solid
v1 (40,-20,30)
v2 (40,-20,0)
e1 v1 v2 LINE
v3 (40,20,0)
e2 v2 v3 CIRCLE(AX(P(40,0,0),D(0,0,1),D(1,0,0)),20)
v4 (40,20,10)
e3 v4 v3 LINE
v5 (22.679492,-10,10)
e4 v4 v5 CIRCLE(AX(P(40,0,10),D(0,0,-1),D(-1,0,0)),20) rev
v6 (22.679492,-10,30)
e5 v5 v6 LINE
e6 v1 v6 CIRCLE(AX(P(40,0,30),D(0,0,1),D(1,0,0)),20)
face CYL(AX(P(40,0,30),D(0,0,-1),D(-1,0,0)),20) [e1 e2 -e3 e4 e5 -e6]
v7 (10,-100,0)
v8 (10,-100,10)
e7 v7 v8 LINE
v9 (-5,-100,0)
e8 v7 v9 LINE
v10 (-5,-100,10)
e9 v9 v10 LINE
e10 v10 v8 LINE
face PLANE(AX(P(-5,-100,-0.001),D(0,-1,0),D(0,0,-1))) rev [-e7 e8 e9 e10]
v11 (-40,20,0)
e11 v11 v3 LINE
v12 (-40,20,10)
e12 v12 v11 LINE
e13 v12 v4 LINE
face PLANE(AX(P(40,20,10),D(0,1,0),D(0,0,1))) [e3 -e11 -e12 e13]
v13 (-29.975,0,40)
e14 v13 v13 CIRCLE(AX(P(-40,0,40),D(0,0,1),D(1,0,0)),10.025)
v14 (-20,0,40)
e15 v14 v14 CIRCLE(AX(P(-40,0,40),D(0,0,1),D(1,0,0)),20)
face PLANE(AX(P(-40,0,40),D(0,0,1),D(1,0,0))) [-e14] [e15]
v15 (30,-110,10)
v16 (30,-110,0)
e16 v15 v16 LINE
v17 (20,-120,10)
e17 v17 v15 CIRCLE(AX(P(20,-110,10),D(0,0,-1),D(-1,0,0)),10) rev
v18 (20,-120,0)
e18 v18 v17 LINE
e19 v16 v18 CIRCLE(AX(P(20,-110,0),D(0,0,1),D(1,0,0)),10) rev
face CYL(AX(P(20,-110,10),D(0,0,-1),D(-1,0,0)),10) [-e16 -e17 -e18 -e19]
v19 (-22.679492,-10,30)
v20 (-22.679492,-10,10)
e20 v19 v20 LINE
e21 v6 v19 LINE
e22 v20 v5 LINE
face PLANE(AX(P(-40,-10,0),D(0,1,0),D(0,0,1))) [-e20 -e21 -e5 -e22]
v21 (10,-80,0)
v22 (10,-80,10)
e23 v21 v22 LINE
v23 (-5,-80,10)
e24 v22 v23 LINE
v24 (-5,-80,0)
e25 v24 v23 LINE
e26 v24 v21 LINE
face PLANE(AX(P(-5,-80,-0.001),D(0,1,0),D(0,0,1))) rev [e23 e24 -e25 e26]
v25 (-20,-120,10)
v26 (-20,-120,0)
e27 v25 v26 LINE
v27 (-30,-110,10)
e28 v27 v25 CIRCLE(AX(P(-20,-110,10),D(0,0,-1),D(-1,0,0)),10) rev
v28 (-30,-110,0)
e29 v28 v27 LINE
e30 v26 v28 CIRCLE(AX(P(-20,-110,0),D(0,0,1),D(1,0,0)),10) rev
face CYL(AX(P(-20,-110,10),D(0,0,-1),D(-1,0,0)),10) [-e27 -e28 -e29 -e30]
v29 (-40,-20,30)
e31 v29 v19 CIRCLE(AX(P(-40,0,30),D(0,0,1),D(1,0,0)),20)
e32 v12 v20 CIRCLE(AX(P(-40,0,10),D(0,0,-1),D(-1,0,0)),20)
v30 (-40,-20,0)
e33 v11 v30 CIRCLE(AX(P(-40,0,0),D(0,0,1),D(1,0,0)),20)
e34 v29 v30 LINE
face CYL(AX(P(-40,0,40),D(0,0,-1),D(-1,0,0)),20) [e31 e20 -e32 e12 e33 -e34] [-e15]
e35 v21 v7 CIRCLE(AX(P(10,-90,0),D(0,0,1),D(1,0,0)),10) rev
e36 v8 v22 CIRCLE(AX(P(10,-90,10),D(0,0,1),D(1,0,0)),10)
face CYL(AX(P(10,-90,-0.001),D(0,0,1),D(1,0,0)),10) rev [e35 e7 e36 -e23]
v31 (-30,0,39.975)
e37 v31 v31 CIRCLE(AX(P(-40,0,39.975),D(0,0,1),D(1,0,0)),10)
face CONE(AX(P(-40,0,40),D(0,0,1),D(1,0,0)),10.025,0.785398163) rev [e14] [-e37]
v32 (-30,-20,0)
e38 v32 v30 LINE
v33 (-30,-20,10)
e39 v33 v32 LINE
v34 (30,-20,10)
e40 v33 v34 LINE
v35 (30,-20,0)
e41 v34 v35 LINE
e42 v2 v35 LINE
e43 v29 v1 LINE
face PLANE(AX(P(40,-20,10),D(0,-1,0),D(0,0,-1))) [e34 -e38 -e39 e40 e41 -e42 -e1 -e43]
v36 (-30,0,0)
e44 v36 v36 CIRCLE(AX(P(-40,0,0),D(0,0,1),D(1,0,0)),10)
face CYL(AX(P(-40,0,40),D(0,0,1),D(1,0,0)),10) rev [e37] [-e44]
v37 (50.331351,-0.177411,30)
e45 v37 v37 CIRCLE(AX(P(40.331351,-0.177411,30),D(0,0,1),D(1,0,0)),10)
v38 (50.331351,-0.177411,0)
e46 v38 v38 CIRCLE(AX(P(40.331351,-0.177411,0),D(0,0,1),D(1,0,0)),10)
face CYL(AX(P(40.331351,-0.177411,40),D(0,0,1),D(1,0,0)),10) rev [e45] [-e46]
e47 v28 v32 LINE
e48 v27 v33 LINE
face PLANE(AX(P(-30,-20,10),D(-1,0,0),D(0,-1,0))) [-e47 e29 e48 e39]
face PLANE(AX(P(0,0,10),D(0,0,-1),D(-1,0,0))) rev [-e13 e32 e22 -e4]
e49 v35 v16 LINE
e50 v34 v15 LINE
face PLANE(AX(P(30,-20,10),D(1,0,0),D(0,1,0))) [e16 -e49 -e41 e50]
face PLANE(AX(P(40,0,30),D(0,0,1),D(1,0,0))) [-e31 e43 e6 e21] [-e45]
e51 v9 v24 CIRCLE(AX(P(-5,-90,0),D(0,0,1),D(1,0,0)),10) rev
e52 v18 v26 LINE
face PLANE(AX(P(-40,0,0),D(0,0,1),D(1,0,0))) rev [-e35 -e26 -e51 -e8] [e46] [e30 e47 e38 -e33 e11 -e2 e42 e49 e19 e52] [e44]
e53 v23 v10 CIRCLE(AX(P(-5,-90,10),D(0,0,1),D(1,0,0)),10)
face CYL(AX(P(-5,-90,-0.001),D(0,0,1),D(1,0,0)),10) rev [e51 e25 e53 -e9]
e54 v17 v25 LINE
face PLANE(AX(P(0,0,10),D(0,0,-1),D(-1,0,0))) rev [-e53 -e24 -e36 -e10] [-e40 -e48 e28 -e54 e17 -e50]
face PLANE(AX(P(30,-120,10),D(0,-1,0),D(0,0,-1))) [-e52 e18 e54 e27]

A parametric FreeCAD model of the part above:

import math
import FreeCAD as App
import Part
import Sketcher
from FreeCAD import Vector
Q = App.Units.Quantity


def edges_at(feature, points):
    """Names of the edges that pass closest to the given points."""
    edges = feature.Shape.Edges
    near = lambda p: min(range(len(edges)), key=lambda i: edges[i].distToShape(Part.Vertex(*p))[0])
    return sorted({f"Edge{near(p) + 1}" for p in points})

doc = App.newDocument("Part")
body = doc.addObject("PartDesign::Body", "Body")

sketch1 = body.newObject("Sketcher::SketchObject", "Sketch")
sketch1.AttachmentSupport = (doc.getObject("XY_Plane"), [""])
sketch1.MapMode = "FlatFace"
sketch1.addGeometry(Part.Circle(Vector(-40, 0, 0), Vector(0, 0, 1), 20), False)
sketch1.addConstraint(Sketcher.Constraint("PointOnObject", 0, 3, -1))
sketch1.addConstraint(Sketcher.Constraint("Diameter", 0, Q("40 mm")))
sketch1.addConstraint(Sketcher.Constraint("DistanceX", 0, 3, -1, 1, Q("40 mm")))
pad1 = body.newObject("PartDesign::Pad", "Pad")
pad1.Profile = sketch1
pad1.Length = 40
body2 = doc.addObject("PartDesign::Body", "Body001")

sketch2 = body2.newObject("Sketcher::SketchObject", "Sketch001")
sketch2.AttachmentSupport = (doc.getObject("XY_Plane001"), [""])
sketch2.MapMode = "FlatFace"
sketch2.addGeometry(Part.Circle(Vector(40, 0, 0), Vector(0, 0, 1), 20), False)
sketch2.addConstraint(Sketcher.Constraint("PointOnObject", 0, 3, -1))
sketch2.addConstraint(Sketcher.Constraint("Diameter", 0, Q("40 mm")))
sketch2.addConstraint(Sketcher.Constraint("DistanceX", -1, 1, 0, 3, Q("40 mm")))
pad2 = body2.newObject("PartDesign::Pad", "Pad001")
pad2.Profile = sketch2
pad2.Length = 30
body.AllowCompound = True
doc.recompute()

boolean = body.newObject("PartDesign::Boolean", "Boolean")
boolean.Type = "Fuse"
boolean.addObjects([body2])

sketch3 = body.newObject("Sketcher::SketchObject", "Sketch002")
sketch3.AttachmentSupport = (doc.getObject("XY_Plane"), [""])
sketch3.MapMode = "FlatFace"
sketch3.addGeometry(Part.LineSegment(Vector(40, 20, 0), Vector(40, -20, 0)), False)
sketch3.addGeometry(Part.LineSegment(Vector(40, -20, 0), Vector(-40, -20, 0)), False)
sketch3.addGeometry(Part.LineSegment(Vector(-40, -20, 0), Vector(-40, 20, 0)), False)
sketch3.addGeometry(Part.LineSegment(Vector(-40, 20, 0), Vector(40, 20, 0)), False)
sketch3.addConstraint(Sketcher.Constraint("Coincident", 0, 2, 1, 1))
sketch3.addConstraint(Sketcher.Constraint("Coincident", 1, 2, 2, 1))
sketch3.addConstraint(Sketcher.Constraint("Coincident", 2, 2, 3, 1))
sketch3.addConstraint(Sketcher.Constraint("Coincident", 3, 2, 0, 1))
sketch3.addConstraint(Sketcher.Constraint("Vertical", 0))
sketch3.addConstraint(Sketcher.Constraint("Horizontal", 1))
sketch3.addConstraint(Sketcher.Constraint("Vertical", 2))
sketch3.addConstraint(Sketcher.Constraint("Horizontal", 3))
sketch3.addConstraint(Sketcher.Constraint("Symmetric", 0, 2, 2, 2, -1, 1))
sketch3.addConstraint(Sketcher.Constraint("DistanceX", 1, 2, 1, 1, Q("80 mm")))
sketch3.addConstraint(Sketcher.Constraint("DistanceY", 0, 2, 0, 1, Q("40 mm")))
pad3 = body.newObject("PartDesign::Pad", "Pad002")
pad3.Profile = sketch3
pad3.Length = 10

sketch4 = body.newObject("Sketcher::SketchObject", "Sketch003")
sketch4.AttachmentSupport = (doc.getObject("XY_Plane"), [""])
sketch4.MapMode = "FlatFace"
sketch4.AttachmentOffset = App.Placement(Vector(0, 0, 30), App.Rotation())
sketch4.addGeometry(Part.LineSegment(Vector(-40, -10, 0), Vector(-40, -20, 0)), False)
sketch4.addGeometry(Part.LineSegment(Vector(-40, -20, 0), Vector(40, -20, 0)), False)
sketch4.addGeometry(Part.LineSegment(Vector(40, -20, 0), Vector(40, -10, 0)), False)
sketch4.addGeometry(Part.LineSegment(Vector(40, -10, 0), Vector(-40, -10, 0)), False)
sketch4.addConstraint(Sketcher.Constraint("Coincident", 0, 2, 1, 1))
sketch4.addConstraint(Sketcher.Constraint("Coincident", 1, 2, 2, 1))
sketch4.addConstraint(Sketcher.Constraint("Coincident", 2, 2, 3, 1))
sketch4.addConstraint(Sketcher.Constraint("Coincident", 3, 2, 0, 1))
sketch4.addConstraint(Sketcher.Constraint("Vertical", 0))
sketch4.addConstraint(Sketcher.Constraint("Horizontal", 1))
sketch4.addConstraint(Sketcher.Constraint("Vertical", 2))
sketch4.addConstraint(Sketcher.Constraint("Horizontal", 3))
sketch4.addConstraint(Sketcher.Constraint("DistanceX", 1, 1, 1, 2, Q("80 mm")))
sketch4.addConstraint(Sketcher.Constraint("DistanceY", 0, 2, 0, 1, Q("10 mm")))
sketch4.addConstraint(Sketcher.Constraint("DistanceX", 0, 2, -1, 1, Q("40 mm")))
sketch4.addConstraint(Sketcher.Constraint("DistanceY", 0, 2, -1, 1, Q("20 mm")))
pad4 = body.newObject("PartDesign::Pad", "Pad003")
pad4.Profile = sketch4
pad4.Length = 30
pad4.Reversed = True

sketch5 = body.newObject("Sketcher::SketchObject", "Sketch004")
sketch5.AttachmentSupport = (doc.getObject("XY_Plane"), [""])
sketch5.MapMode = "FlatFace"
sketch5.AttachmentOffset = App.Placement(Vector(0, 0, 40), App.Rotation())
sketch5.addGeometry(Part.Circle(Vector(-40, 0, 0), Vector(0, 0, 1), 10), False)
sketch5.addGeometry(Part.Circle(Vector(40, 0, 0), Vector(0, 0, 1), 10), False)
sketch5.addConstraint(Sketcher.Constraint("Equal", 0, 1))
sketch5.addConstraint(Sketcher.Constraint("PointOnObject", 0, 3, -1))
sketch5.addConstraint(Sketcher.Constraint("Diameter", 0, Q("20 mm")))
sketch5.addConstraint(Sketcher.Constraint("DistanceX", 0, 3, -1, 1, Q("40 mm")))
sketch5.addConstraint(Sketcher.Constraint("DistanceX", -1, 1, 1, 3, Q("40.331351 mm")))
sketch5.addConstraint(Sketcher.Constraint("DistanceY", 1, 3, -1, 1, Q("0.177411 mm")))
doc.recompute()
hole = body.newObject("PartDesign::Hole", "Hole")
hole.Profile = sketch5
hole.ThreadType = "None"
hole.Diameter = 20
hole.DepthType = "ThroughAll"
hole.HoleCutType = "Countersink"
hole.HoleCutDiameter = 20.05
hole.HoleCutCountersinkAngle = 90

sketch6 = body.newObject("Sketcher::SketchObject", "Sketch005")
sketch6.AttachmentSupport = (doc.getObject("XY_Plane"), [""])
sketch6.MapMode = "FlatFace"
sketch6.addGeometry(Part.LineSegment(Vector(30, -20, 0), Vector(30, -120, 0)), False)
sketch6.addGeometry(Part.LineSegment(Vector(30, -120, 0), Vector(-30, -120, 0)), False)
sketch6.addGeometry(Part.LineSegment(Vector(-30, -120, 0), Vector(-30, -20, 0)), False)
sketch6.addGeometry(Part.LineSegment(Vector(-30, -20, 0), Vector(30, -20, 0)), False)
sketch6.addConstraint(Sketcher.Constraint("Coincident", 0, 2, 1, 1))
sketch6.addConstraint(Sketcher.Constraint("Coincident", 1, 2, 2, 1))
sketch6.addConstraint(Sketcher.Constraint("Coincident", 2, 2, 3, 1))
sketch6.addConstraint(Sketcher.Constraint("Coincident", 3, 2, 0, 1))
sketch6.addConstraint(Sketcher.Constraint("Vertical", 0))
sketch6.addConstraint(Sketcher.Constraint("Horizontal", 1))
sketch6.addConstraint(Sketcher.Constraint("Vertical", 2))
sketch6.addConstraint(Sketcher.Constraint("Horizontal", 3))
sketch6.addConstraint(Sketcher.Constraint("DistanceX", 1, 2, 1, 1, Q("60 mm")))
sketch6.addConstraint(Sketcher.Constraint("DistanceY", 0, 2, 0, 1, Q("100 mm")))
sketch6.addConstraint(Sketcher.Constraint("DistanceX", -1, 1, 0, 2, Q("30 mm")))
sketch6.addConstraint(Sketcher.Constraint("DistanceY", 0, 2, -1, 1, Q("120 mm")))
pad5 = body.newObject("PartDesign::Pad", "Pad004")
pad5.Profile = sketch6
pad5.Length = 10
doc.recompute()

fillet = body.newObject("PartDesign::Fillet", "Fillet")
fillet.Base = (pad5, edges_at(pad5, [(-30, -120, 5)]))
fillet.Radius = 10
doc.recompute()

fillet2 = body.newObject("PartDesign::Fillet", "Fillet001")
fillet2.Base = (fillet, edges_at(fillet, [(30, -120, 5)]))
fillet2.Radius = 10

sketch7 = body.newObject("Sketcher::SketchObject", "Sketch006")
sketch7.AttachmentSupport = (doc.getObject("XY_Plane"), [""])
sketch7.MapMode = "FlatFace"
sketch7.AttachmentOffset = App.Placement(Vector(0, 0, 10), App.Rotation())
sketch7.addGeometry(Part.LineSegment(Vector(10, -80, 0), Vector(-5, -80, 0)), False)
sketch7.addGeometry(Part.ArcOfCircle(Part.Circle(Vector(-5, -90, 0), Vector(0, 0, 1), 10), math.radians(90), math.radians(270)), False)
sketch7.addGeometry(Part.LineSegment(Vector(-5, -100, 0), Vector(10, -100, 0)), False)
sketch7.addGeometry(Part.ArcOfCircle(Part.Circle(Vector(10, -90, 0), Vector(0, 0, 1), 10), math.radians(-90), math.radians(90)), False)
sketch7.addConstraint(Sketcher.Constraint("Tangent", 0, 2, 1, 1))
sketch7.addConstraint(Sketcher.Constraint("Tangent", 1, 2, 2, 1))
sketch7.addConstraint(Sketcher.Constraint("Tangent", 2, 2, 3, 1))
sketch7.addConstraint(Sketcher.Constraint("Tangent", 3, 2, 0, 1))
sketch7.addConstraint(Sketcher.Constraint("Horizontal", 0))
sketch7.addConstraint(Sketcher.Constraint("Horizontal", 2))
sketch7.addConstraint(Sketcher.Constraint("Radius", 1, Q("10 mm")))
sketch7.addConstraint(Sketcher.Constraint("DistanceX", 0, 2, 0, 1, Q("15 mm")))
sketch7.addConstraint(Sketcher.Constraint("DistanceX", 1, 3, -1, 1, Q("5 mm")))
sketch7.addConstraint(Sketcher.Constraint("DistanceY", 1, 3, -1, 1, Q("90 mm")))
pocket1 = body.newObject("PartDesign::Pocket", "Pocket")
pocket1.Profile = sketch7
pocket1.Type = "UpToFirst"

doc.recompute()
